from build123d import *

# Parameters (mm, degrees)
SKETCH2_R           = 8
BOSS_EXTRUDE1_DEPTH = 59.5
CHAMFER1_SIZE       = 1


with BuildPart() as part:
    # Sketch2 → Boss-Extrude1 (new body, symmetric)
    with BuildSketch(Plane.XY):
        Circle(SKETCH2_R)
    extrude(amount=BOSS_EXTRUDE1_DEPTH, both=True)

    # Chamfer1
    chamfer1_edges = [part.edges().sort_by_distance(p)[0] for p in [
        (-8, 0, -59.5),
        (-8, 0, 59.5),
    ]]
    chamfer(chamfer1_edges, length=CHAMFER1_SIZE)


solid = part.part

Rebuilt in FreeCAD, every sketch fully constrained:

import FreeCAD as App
import Part
import Sketcher


def edges_at(feature, points):
    """Names of the edges that pass closest to the given points."""
    edges = feature.Shape.Edges
    near = lambda p: min(range(len(edges)), key=lambda i: edges[i].distToShape(Part.Vertex(*p))[0])
    return sorted({f"Edge{near(p) + 1}" for p in points})

doc = App.newDocument("Part")
body = doc.addObject("PartDesign::Body", "Body")

# Sketch on XY plane
sketch1 = doc.addObject("Sketcher::SketchObject", "Sketch")
body.addObject(sketch1)
sketch1.AttachmentSupport = (doc.XY_Plane, [""])
sketch1.MapMode = "FlatFace"
sketch1.addGeometry(Part.Circle(App.Vector(0, 0, 0), App.Vector(0, 0, 1), 8), False)
sketch1.addConstraint([
    Sketcher.Constraint("Coincident", 0, 3, -1, 1),
    Sketcher.Constraint("Diameter", 0, 16.0),
])
pad1 = doc.addObject("PartDesign::Pad", "Pad")
body.addObject(pad1)
pad1.Profile = sketch1
pad1.Length = 119
pad1.Midplane = True
doc.recompute()

chamfer = doc.addObject("PartDesign::Chamfer", "Chamfer")
body.addObject(chamfer)
chamfer.Base = (pad1, edges_at(pad1, [(-8, 0, -59.5), (-8, 0, 59.5)]))
chamfer.Size = 1

doc.recompute()
